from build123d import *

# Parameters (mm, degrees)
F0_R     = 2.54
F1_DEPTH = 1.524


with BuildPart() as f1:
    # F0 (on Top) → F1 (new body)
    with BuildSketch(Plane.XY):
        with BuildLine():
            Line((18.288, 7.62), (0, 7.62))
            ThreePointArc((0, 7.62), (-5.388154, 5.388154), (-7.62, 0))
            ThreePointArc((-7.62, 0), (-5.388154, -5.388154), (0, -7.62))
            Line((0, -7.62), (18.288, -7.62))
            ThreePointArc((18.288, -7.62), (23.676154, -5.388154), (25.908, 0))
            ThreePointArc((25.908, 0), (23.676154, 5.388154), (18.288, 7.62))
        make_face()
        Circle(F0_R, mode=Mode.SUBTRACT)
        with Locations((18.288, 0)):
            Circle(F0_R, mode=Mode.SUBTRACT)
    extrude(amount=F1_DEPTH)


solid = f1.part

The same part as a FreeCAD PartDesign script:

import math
import FreeCAD as App
import Part
import Sketcher
from FreeCAD import Vector
Q = App.Units.Quantity

doc = App.newDocument("Part")
body = doc.addObject("PartDesign::Body", "Body")

# Sketch on XY plane
sketch1 = body.newObject("Sketcher::SketchObject", "Sketch")
sketch1.AttachmentSupport = (doc.getObject("XY_Plane"), [""])
sketch1.MapMode = "FlatFace"
sketch1.addGeometry(Part.LineSegment(Vector(18.3, 7.6, 0), Vector(0, 7.6, 0)), False)
sketch1.addGeometry(Part.ArcOfCircle(Part.Circle(Vector(0, 0, 0), Vector(0, 0, 1), 7.6), math.radians(90), math.radians(180)), False)
sketch1.addGeometry(Part.ArcOfCircle(Part.Circle(Vector(0, 0, 0), Vector(0, 0, 1), 7.6), math.radians(180), math.radians(270)), False)
sketch1.addGeometry(Part.LineSegment(Vector(0, -7.6, 0), Vector(18.3, -7.6, 0)), False)
sketch1.addGeometry(Part.ArcOfCircle(Part.Circle(Vector(18.3, 0, 0), Vector(0, 0, 1), 7.6), math.radians(-90), math.radians(0)), False)
sketch1.addGeometry(Part.ArcOfCircle(Part.Circle(Vector(18.3, 0, 0), Vector(0, 0, 1), 7.6), math.radians(0), math.radians(90)), False)
sketch1.addGeometry(Part.Circle(Vector(0, 0, 0), Vector(0, 0, 1), 2.5), False)
sketch1.addGeometry(Part.Circle(Vector(18.3, 0, 0), Vector(0, 0, 1), 2.5), False)
sketch1.addConstraint(Sketcher.Constraint("Tangent", 0, 2, 1, 1))
sketch1.addConstraint(Sketcher.Constraint("Tangent", 1, 2, 2, 1))
sketch1.addConstraint(Sketcher.Constraint("Tangent", 2, 2, 3, 1))
sketch1.addConstraint(Sketcher.Constraint("Tangent", 3, 2, 4, 1))
sketch1.addConstraint(Sketcher.Constraint("Tangent", 4, 2, 5, 1))
sketch1.addConstraint(Sketcher.Constraint("Tangent", 5, 2, 0, 1))
sketch1.addConstraint(Sketcher.Constraint("Horizontal", 0))
sketch1.addConstraint(Sketcher.Constraint("Horizontal", 3))
sketch1.addConstraint(Sketcher.Constraint("Coincident", 1, 3, -1, 1))
sketch1.addConstraint(Sketcher.Constraint("Coincident", 6, 3, -1, 1))
sketch1.addConstraint(Sketcher.Constraint("Coincident", 7, 3, 4, 3))
sketch1.addConstraint(Sketcher.Constraint("Equal", 1, 2))
sketch1.addConstraint(Sketcher.Constraint("Equal", 2, 4))
sketch1.addConstraint(Sketcher.Constraint("Equal", 6, 7))
sketch1.addConstraint(Sketcher.Constraint("PointOnObject", 1, 2, -1))
sketch1.addConstraint(Sketcher.Constraint("PointOnObject", 4, 2, -1))
sketch1.addConstraint(Sketcher.Constraint("Diameter", 6, Q("0.2 in")))
sketch1.addConstraint(Sketcher.Constraint("Radius", 1, Q("0.3 in")))
sketch1.addConstraint(Sketcher.Constraint("DistanceX", 0, 2, 0, 1, Q("0.72 in")))
pad1 = body.newObject("PartDesign::Pad", "Pad")
pad1.Profile = sketch1
pad1.Length = Q("0.06 in")

doc.recompute()
